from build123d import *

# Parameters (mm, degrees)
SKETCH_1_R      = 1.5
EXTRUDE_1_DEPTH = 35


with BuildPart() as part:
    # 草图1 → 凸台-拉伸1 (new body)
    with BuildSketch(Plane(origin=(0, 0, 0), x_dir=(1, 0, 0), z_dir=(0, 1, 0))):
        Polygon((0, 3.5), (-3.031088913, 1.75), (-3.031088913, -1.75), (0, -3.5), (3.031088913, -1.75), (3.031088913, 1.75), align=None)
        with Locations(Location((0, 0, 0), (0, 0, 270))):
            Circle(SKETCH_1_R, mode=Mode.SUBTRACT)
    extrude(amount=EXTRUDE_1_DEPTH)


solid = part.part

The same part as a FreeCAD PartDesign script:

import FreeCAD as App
import Part
import Sketcher
from FreeCAD import Vector
Q = App.Units.Quantity

doc = App.newDocument("Part")
body = doc.addObject("PartDesign::Body", "Body")

# Sketch on XZ plane
sketch1 = doc.addObject("Sketcher::SketchObject", "Sketch")
body.addObject(sketch1)
sketch1.AttachmentSupport = (doc.XZ_Plane, [""])
sketch1.MapMode = "FlatFace"
sketch1.addGeometry([
    Part.LineSegment(Vector(0, -3.5, 0), Vector(-3.031089, -1.75, 0)),  # 0
    Part.LineSegment(Vector(-3.031089, -1.75, 0), Vector(-3.031089, 1.75, 0)),  # 1
    Part.LineSegment(Vector(-3.031089, 1.75, 0), Vector(0, 3.5, 0)),  # 2
    Part.LineSegment(Vector(0, 3.5, 0), Vector(3.031089, 1.75, 0)),  # 3
    Part.LineSegment(Vector(3.031089, 1.75, 0), Vector(3.031089, -1.75, 0)),  # 4
    Part.LineSegment(Vector(3.031089, -1.75, 0), Vector(0, -3.5, 0)),  # 5
    Part.Circle(Vector(0, 0, 0), Vector(0, 0, 1), 1.5),  # 6
], False)
sketch1.addConstraint([
    Sketcher.Constraint("Coincident", 0, 2, 1, 1),
    Sketcher.Constraint("Coincident", 1, 2, 2, 1),
    Sketcher.Constraint("Coincident", 2, 2, 3, 1),
    Sketcher.Constraint("Coincident", 3, 2, 4, 1),
    Sketcher.Constraint("Coincident", 4, 2, 5, 1),
    Sketcher.Constraint("Coincident", 5, 2, 0, 1),
    Sketcher.Constraint("Vertical", 1),
    Sketcher.Constraint("Vertical", 4),
    Sketcher.Constraint("Coincident", 6, 3, -1, 1),
    Sketcher.Constraint("Symmetric", 0, 2, 3, 2, -1, 1),
    Sketcher.Constraint("Symmetric", 2, 2, 5, 2, -1, 1),
    Sketcher.Constraint("PointOnObject", 2, 2, -2),
    Sketcher.Constraint("Parallel", 2, 5),
    Sketcher.Constraint("Horizontal", 1, 2, 3, 2),
    Sketcher.Constraint("Diameter", 6, 3.0),
    Sketcher.Constraint("Angle", 0, Q("150 deg")),
    Sketcher.Constraint("DistanceY", 1, 1, 1, 2, 3.5),
    Sketcher.Constraint("Distance", 0, 3.5),
])
pad1 = doc.addObject("PartDesign::Pad", "Pad")
body.addObject(pad1)
pad1.Profile = sketch1
pad1.Length = 35
pad1.Reversed = True

doc.recompute()
